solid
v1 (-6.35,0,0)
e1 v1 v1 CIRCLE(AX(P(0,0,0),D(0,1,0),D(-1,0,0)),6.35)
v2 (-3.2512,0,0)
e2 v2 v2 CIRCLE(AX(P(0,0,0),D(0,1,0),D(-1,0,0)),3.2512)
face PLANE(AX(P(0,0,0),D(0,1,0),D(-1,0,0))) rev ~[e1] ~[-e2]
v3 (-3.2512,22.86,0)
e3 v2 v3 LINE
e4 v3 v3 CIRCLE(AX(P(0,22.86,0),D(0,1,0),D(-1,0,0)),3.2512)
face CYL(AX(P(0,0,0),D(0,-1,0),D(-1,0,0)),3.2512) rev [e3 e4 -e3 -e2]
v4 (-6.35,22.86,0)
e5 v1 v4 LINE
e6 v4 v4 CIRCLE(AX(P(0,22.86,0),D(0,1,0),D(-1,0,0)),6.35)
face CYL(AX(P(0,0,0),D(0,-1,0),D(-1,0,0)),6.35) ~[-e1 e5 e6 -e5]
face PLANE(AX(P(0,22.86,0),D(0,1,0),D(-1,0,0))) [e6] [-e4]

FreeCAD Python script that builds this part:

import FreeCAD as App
import Part
import Sketcher
Q = App.Units.Quantity

doc = App.newDocument("Part")
body = doc.addObject("PartDesign::Body", "Body")

sketch1 = body.newObject("Sketcher::SketchObject", "Sketch")
sketch1.AttachmentSupport = (doc.getObject("XZ_Plane"), [""])
sketch1.MapMode = "FlatFace"
sketch1.addGeometry(Part.Circle(App.Vector(0, 0, 0), App.Vector(0, 0, 1), 6.35), False)
sketch1.addGeometry(Part.Circle(App.Vector(0, 0, 0), App.Vector(0, 0, 1), 3.2512), False)
sketch1.addConstraint(Sketcher.Constraint("Coincident", 0, 3, -1, 1))
sketch1.addConstraint(Sketcher.Constraint("Coincident", 1, 3, -1, 1))
sketch1.addConstraint(Sketcher.Constraint("Diameter", 0, Q("0.5 in")))
sketch1.addConstraint(Sketcher.Constraint("Diameter", 1, Q("0.256 in")))
pad1 = body.newObject("PartDesign::Pad", "Pad")
pad1.Profile = sketch1
pad1.Length = Q("0.9 in")
pad1.Reversed = True

doc.recompute()
